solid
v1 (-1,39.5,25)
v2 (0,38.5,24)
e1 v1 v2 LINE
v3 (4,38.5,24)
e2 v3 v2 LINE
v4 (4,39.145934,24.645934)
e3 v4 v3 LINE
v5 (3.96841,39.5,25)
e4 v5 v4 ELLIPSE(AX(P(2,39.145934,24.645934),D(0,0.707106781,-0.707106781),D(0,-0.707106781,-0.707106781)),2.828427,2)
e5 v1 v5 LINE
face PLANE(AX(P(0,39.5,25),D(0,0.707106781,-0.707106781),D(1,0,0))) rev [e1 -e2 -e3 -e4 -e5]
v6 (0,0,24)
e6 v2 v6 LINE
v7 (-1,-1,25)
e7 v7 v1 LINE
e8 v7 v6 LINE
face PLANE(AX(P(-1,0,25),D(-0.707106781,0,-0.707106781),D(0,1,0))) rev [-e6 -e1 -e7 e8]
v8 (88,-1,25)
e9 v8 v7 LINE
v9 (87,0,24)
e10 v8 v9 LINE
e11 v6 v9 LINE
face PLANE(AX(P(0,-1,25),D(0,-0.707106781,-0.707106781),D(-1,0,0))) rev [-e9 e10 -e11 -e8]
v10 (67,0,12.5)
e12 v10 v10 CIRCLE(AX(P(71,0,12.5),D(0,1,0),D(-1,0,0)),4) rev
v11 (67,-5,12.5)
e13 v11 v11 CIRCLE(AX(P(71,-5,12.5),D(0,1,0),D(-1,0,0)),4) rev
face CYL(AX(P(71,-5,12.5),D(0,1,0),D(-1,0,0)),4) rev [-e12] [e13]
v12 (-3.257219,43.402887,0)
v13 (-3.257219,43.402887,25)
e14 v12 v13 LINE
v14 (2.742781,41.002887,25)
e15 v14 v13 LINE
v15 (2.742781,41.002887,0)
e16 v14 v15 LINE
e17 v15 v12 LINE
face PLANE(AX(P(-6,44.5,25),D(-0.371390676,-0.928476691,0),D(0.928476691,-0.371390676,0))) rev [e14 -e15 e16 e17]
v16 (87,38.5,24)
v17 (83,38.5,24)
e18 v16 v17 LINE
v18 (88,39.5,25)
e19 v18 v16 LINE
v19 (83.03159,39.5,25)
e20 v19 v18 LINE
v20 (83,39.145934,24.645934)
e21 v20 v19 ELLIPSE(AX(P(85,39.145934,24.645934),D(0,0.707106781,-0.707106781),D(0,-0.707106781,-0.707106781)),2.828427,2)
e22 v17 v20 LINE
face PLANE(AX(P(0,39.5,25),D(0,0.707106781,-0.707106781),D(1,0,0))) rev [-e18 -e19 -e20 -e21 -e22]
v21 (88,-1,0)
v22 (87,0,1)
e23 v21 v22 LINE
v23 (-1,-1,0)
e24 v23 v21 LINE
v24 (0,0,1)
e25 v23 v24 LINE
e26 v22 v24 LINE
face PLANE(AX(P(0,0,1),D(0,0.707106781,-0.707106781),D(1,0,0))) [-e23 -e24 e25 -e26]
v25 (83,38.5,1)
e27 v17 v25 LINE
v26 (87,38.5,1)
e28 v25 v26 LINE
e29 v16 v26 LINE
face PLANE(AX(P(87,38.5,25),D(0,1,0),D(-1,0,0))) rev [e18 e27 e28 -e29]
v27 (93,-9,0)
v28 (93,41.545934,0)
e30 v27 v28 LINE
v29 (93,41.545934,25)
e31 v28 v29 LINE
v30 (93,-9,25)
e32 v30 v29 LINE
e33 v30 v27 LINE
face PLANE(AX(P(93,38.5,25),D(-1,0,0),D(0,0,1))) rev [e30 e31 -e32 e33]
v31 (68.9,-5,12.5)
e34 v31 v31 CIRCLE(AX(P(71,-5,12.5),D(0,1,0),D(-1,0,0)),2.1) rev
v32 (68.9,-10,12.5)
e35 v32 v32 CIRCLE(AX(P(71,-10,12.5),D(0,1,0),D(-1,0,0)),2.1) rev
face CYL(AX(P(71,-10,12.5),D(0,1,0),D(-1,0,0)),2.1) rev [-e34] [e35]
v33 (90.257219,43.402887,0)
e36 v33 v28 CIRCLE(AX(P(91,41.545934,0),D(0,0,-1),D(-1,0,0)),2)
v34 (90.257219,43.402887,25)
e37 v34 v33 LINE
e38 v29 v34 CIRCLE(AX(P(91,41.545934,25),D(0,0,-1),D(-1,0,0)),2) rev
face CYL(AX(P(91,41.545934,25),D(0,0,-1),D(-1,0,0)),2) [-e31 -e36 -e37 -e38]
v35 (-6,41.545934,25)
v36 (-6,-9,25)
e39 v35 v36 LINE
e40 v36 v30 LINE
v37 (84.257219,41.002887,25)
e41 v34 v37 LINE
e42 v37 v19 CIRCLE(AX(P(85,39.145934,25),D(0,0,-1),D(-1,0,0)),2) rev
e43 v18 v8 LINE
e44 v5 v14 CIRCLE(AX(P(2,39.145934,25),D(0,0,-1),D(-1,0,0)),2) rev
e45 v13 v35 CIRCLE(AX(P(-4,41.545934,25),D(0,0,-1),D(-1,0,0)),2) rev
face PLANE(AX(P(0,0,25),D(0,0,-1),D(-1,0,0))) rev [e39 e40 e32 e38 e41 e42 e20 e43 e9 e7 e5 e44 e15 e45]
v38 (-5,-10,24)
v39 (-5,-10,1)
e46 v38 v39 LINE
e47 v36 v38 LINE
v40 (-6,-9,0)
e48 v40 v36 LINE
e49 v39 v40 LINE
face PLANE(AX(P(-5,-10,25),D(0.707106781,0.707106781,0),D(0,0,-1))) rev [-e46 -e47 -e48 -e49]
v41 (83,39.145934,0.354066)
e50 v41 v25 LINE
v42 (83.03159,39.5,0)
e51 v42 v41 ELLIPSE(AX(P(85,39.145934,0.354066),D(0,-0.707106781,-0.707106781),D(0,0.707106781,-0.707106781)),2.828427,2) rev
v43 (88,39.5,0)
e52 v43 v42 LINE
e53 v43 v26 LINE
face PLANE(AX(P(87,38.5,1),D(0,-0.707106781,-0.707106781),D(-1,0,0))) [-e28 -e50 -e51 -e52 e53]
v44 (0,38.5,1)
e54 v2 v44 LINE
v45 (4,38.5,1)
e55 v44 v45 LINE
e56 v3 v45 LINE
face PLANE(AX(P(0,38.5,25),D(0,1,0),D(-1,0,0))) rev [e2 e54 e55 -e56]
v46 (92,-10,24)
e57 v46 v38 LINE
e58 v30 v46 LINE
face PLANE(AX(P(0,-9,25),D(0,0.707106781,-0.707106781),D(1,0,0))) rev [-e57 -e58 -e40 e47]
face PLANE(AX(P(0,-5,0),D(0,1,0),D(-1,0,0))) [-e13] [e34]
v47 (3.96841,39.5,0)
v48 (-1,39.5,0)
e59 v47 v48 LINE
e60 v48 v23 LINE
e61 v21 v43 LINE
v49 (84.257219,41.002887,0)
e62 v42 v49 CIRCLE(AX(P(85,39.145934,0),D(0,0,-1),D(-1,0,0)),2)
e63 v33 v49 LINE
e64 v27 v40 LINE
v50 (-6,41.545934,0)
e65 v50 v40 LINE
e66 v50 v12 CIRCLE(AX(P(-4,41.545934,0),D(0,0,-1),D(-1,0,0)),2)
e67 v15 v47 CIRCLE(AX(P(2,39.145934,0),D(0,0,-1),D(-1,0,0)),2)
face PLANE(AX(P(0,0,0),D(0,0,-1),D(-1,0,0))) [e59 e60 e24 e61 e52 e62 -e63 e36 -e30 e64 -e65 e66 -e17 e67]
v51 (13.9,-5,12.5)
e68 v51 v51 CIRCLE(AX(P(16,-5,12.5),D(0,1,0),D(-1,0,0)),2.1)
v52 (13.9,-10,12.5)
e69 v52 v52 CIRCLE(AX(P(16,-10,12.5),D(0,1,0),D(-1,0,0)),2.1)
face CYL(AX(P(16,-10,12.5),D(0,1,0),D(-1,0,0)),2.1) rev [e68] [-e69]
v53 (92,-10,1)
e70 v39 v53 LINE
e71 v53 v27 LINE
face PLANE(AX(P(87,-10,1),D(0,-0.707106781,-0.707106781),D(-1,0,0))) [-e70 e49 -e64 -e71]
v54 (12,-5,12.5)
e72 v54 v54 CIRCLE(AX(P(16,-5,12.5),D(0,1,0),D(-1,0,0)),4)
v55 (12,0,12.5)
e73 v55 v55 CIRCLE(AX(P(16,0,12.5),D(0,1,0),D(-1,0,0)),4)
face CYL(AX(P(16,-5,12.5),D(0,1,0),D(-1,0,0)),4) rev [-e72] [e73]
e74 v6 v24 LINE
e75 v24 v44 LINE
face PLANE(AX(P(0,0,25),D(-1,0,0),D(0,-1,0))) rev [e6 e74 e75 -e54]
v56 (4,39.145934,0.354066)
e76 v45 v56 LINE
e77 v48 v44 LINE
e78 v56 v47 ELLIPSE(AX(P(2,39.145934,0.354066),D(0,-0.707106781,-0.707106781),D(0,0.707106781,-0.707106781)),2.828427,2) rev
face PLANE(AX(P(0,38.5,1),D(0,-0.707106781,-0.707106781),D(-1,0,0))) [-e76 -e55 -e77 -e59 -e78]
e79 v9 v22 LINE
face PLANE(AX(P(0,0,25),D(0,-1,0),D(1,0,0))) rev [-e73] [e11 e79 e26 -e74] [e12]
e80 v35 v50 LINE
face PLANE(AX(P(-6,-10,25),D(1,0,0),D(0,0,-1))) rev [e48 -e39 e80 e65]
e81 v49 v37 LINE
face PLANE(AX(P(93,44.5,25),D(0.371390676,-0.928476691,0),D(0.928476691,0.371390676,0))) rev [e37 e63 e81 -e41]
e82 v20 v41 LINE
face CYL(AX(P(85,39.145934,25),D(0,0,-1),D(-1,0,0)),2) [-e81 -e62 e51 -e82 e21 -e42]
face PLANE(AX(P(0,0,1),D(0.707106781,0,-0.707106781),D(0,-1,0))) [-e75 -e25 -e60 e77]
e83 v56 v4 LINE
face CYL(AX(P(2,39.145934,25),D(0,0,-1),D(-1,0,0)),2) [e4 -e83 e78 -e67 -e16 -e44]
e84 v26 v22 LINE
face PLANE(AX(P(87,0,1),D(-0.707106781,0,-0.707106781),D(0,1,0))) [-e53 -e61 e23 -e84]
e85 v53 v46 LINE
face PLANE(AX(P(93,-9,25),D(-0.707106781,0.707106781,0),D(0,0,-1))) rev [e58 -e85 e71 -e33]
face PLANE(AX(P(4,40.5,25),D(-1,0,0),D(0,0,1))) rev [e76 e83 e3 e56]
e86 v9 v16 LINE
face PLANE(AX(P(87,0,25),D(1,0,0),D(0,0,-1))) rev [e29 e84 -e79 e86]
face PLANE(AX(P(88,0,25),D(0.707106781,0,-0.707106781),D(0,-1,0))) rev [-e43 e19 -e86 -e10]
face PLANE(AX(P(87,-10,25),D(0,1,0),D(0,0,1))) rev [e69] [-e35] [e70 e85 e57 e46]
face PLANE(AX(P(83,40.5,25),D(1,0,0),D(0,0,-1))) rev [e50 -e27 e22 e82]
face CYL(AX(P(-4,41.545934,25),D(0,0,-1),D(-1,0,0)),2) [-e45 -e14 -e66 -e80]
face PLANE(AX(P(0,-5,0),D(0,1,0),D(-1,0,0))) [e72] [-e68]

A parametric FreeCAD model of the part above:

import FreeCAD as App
import Part
import Sketcher


def edges_at(feature, points):
    """Names of the edges that pass closest to the given points."""
    edges = feature.Shape.Edges
    near = lambda p: min(range(len(edges)), key=lambda i: edges[i].distToShape(Part.Vertex(*p))[0])
    return sorted({f"Edge{near(p) + 1}" for p in points})

doc = App.newDocument("Part")
params = doc.addObject("Spreadsheet::Sheet", "Params")
for row, (alias, value) in enumerate([
    ("sketch1_width", "87 mm"),
    ("sketch1_width2", "4 mm"),
    ("sketch1_width3", "99 mm"),
    ("sketch1_height", "2 mm"),
    ("sketch1_height2", "38.5 mm"),
    ("pad1_length", "25 mm"),
    ("sketch2_diameter", "4.2 mm"),
    ("sketch3_diameter", "8 mm"),
    ("sketch3_diameter2", "4.2 mm"),
    ("pocket2_length", "5 mm"),
    ("fillet_radius", "2 mm"),
    ("chamfer_size", "1 mm"),
], start=1):
    params.set(f"A{row}", alias)
    params.set(f"B{row}", "=" + value)
    params.setAlias(f"B{row}", alias)

body = doc.addObject("PartDesign::Body", "Body")

sketch1 = body.newObject("Sketcher::SketchObject", "Sketch")
sketch1.AttachmentSupport = (doc.getObject("XY_Plane"), [""])
sketch1.MapMode = "FlatFace"
sketch1.addGeometry([
    Part.LineSegment(App.Vector(87, 0, 0), App.Vector(0, 0, 0)),
    Part.LineSegment(App.Vector(0, 0, 0), App.Vector(0, 38.5, 0)),
    Part.LineSegment(App.Vector(0, 38.5, 0), App.Vector(4, 38.5, 0)),
    Part.LineSegment(App.Vector(4, 38.5, 0), App.Vector(4, 40.5, 0)),
    Part.LineSegment(App.Vector(4, 40.5, 0), App.Vector(-6, 44.5, 0)),
    Part.LineSegment(App.Vector(-6, 44.5, 0), App.Vector(-6, -10, 0)),
    Part.LineSegment(App.Vector(-6, -10, 0), App.Vector(93, -10, 0)),
    Part.LineSegment(App.Vector(93, -10, 0), App.Vector(93, 44.5, 0)),
    Part.LineSegment(App.Vector(93, 44.5, 0), App.Vector(83, 40.5, 0)),
    Part.LineSegment(App.Vector(83, 40.5, 0), App.Vector(83, 38.5, 0)),
    Part.LineSegment(App.Vector(83, 38.5, 0), App.Vector(87, 38.5, 0)),
    Part.LineSegment(App.Vector(87, 38.5, 0), App.Vector(87, 0, 0)),
], False)
sketch1.addConstraint([
    Sketcher.Constraint("Coincident", 0, 2, 1, 1),
    Sketcher.Constraint("Coincident", 1, 2, 2, 1),
    Sketcher.Constraint("Coincident", 2, 2, 3, 1),
    Sketcher.Constraint("Coincident", 3, 2, 4, 1),
    Sketcher.Constraint("Coincident", 4, 2, 5, 1),
    Sketcher.Constraint("Coincident", 5, 2, 6, 1),
    Sketcher.Constraint("Coincident", 6, 2, 7, 1),
    Sketcher.Constraint("Coincident", 7, 2, 8, 1),
    Sketcher.Constraint("Coincident", 8, 2, 9, 1),
    Sketcher.Constraint("Coincident", 9, 2, 10, 1),
    Sketcher.Constraint("Coincident", 10, 2, 11, 1),
    Sketcher.Constraint("Coincident", 11, 2, 0, 1),
    Sketcher.Constraint("Horizontal", 0),
    Sketcher.Constraint("Vertical", 1),
    Sketcher.Constraint("Horizontal", 2),
    Sketcher.Constraint("Vertical", 3),
    Sketcher.Constraint("Vertical", 5),
    Sketcher.Constraint("Horizontal", 6),
    Sketcher.Constraint("Vertical", 7),
    Sketcher.Constraint("Vertical", 9),
    Sketcher.Constraint("Horizontal", 10),
    Sketcher.Constraint("Vertical", 11),
    Sketcher.Constraint("Coincident", 0, 2, -1, 1),
    Sketcher.Constraint("Horizontal", 4, 2, 7, 2),
    Sketcher.Constraint("Horizontal", 3, 2, 8, 2),
    Sketcher.Constraint("Horizontal", 2, 2, 9, 2),
    Sketcher.Constraint("Equal", 2, 10),
    Sketcher.Constraint("Equal", 4, 8),
    Sketcher.Constraint("DistanceX", 0, 2, 0, 1, 87.0),
    Sketcher.Constraint("DistanceX", 2, 1, 2, 2, 4.0),
    Sketcher.Constraint("DistanceX", 6, 1, 6, 2, 99.0),
    Sketcher.Constraint("DistanceY", 3, 1, 3, 2, 2.0),
    Sketcher.Constraint("DistanceY", 1, 1, 1, 2, 38.5),
    Sketcher.Constraint("DistanceY", 5, 2, 5, 1, 54.5),
    Sketcher.Constraint("DistanceY", 5, 2, -1, 1, 10.0),
])
sketch1.setExpression("Constraints[28]", "Params.sketch1_width")
sketch1.setExpression("Constraints[29]", "Params.sketch1_width2")
sketch1.setExpression("Constraints[30]", "Params.sketch1_width3")
sketch1.setExpression("Constraints[31]", "Params.sketch1_height")
sketch1.setExpression("Constraints[32]", "Params.sketch1_height2")
pad1 = body.newObject("PartDesign::Pad", "Pad")
pad1.Profile = sketch1
pad1.setExpression("Length", "Params.pad1_length")

sketch2 = body.newObject("Sketcher::SketchObject", "Sketch001")
sketch2.AttachmentSupport = (doc.getObject("XZ_Plane"), [""])
sketch2.MapMode = "FlatFace"
sketch2.addGeometry([
    Part.Circle(App.Vector(16, 12.5, 0), App.Vector(0, 0, 1), 2.1),
    Part.Circle(App.Vector(71, 12.5, 0), App.Vector(0, 0, 1), 2.1),
], False)
sketch2.addConstraint([
    Sketcher.Constraint("Equal", 0, 1),
    Sketcher.Constraint("Horizontal", 0, 3, 1, 3),
    Sketcher.Constraint("Diameter", 0, 4.2),
    Sketcher.Constraint("DistanceX", -1, 1, 0, 3, 16.0),
    Sketcher.Constraint("DistanceX", -1, 1, 1, 3, 71.0),
    Sketcher.Constraint("DistanceY", -1, 1, 0, 3, 12.5),
])
sketch2.setExpression("Constraints[2]", "Params.sketch2_diameter")
pocket1 = body.newObject("PartDesign::Pocket", "Pocket")
pocket1.Profile = sketch2
pocket1.Type = "ThroughAll"
pocket1.Reversed = True

sketch3 = body.newObject("Sketcher::SketchObject", "Sketch002")
sketch3.AttachmentSupport = (doc.getObject("XZ_Plane"), [""])
sketch3.MapMode = "FlatFace"
sketch3.addGeometry([
    Part.Circle(App.Vector(16, 12.5, 0), App.Vector(0, 0, 1), 4),
    Part.Circle(App.Vector(16, 12.5, 0), App.Vector(0, 0, 1), 2.1),
    Part.Circle(App.Vector(71, 12.5, 0), App.Vector(0, 0, 1), 4),
    Part.Circle(App.Vector(71, 12.5, 0), App.Vector(0, 0, 1), 2.1),
], False)
sketch3.addConstraint([
    Sketcher.Constraint("Coincident", 1, 3, 0, 3),
    Sketcher.Constraint("Coincident", 3, 3, 2, 3),
    Sketcher.Constraint("Equal", 0, 2),
    Sketcher.Constraint("Equal", 1, 3),
    Sketcher.Constraint("Horizontal", 1, 3, 2, 3),
    Sketcher.Constraint("Diameter", 0, 8.0),
    Sketcher.Constraint("Diameter", 1, 4.2),
    Sketcher.Constraint("DistanceX", -1, 1, 0, 3, 16.0),
    Sketcher.Constraint("DistanceX", -1, 1, 2, 3, 71.0),
    Sketcher.Constraint("DistanceY", -1, 1, 0, 3, 12.5),
])
sketch3.setExpression("Constraints[5]", "Params.sketch3_diameter")
sketch3.setExpression("Constraints[6]", "Params.sketch3_diameter2")
pocket2 = body.newObject("PartDesign::Pocket", "Pocket001")
pocket2.Profile = sketch3
pocket2.setExpression("Length", "Params.pocket2_length")
pocket2.Reversed = True
doc.recompute()

fillet = body.newObject("PartDesign::Fillet", "Fillet")
fillet.Base = (pocket2, edges_at(pocket2, [
    (83, 40.5, 12.5),
    (93, 44.5, 12.5),
    (-6, 44.5, 12.5),
    (4, 40.5, 12.5),
]))
fillet.setExpression("Radius", "Params.fillet_radius")
doc.recompute()

chamfer = body.newObject("PartDesign::Chamfer", "Chamfer")
chamfer.Base = (fillet, edges_at(fillet, [
    (2, 38.5, 25),
    (0, 19.25, 25),
    (85, 38.5, 25),
    (87, 19.25, 25),
    (43.5, 0, 25),
    (85, 38.5, 0),
    (87, 19.25, 0),
    (43.5, 0, 0),
    (2, 38.5, 0),
    (0, 19.25, 0),
    (93, -10, 12.5),
    (43.5, -10, 0),
    (-6, -10, 12.5),
    (43.5, -10, 25),
]))
chamfer.setExpression("Size", "Params.chamfer_size")

doc.recompute()
